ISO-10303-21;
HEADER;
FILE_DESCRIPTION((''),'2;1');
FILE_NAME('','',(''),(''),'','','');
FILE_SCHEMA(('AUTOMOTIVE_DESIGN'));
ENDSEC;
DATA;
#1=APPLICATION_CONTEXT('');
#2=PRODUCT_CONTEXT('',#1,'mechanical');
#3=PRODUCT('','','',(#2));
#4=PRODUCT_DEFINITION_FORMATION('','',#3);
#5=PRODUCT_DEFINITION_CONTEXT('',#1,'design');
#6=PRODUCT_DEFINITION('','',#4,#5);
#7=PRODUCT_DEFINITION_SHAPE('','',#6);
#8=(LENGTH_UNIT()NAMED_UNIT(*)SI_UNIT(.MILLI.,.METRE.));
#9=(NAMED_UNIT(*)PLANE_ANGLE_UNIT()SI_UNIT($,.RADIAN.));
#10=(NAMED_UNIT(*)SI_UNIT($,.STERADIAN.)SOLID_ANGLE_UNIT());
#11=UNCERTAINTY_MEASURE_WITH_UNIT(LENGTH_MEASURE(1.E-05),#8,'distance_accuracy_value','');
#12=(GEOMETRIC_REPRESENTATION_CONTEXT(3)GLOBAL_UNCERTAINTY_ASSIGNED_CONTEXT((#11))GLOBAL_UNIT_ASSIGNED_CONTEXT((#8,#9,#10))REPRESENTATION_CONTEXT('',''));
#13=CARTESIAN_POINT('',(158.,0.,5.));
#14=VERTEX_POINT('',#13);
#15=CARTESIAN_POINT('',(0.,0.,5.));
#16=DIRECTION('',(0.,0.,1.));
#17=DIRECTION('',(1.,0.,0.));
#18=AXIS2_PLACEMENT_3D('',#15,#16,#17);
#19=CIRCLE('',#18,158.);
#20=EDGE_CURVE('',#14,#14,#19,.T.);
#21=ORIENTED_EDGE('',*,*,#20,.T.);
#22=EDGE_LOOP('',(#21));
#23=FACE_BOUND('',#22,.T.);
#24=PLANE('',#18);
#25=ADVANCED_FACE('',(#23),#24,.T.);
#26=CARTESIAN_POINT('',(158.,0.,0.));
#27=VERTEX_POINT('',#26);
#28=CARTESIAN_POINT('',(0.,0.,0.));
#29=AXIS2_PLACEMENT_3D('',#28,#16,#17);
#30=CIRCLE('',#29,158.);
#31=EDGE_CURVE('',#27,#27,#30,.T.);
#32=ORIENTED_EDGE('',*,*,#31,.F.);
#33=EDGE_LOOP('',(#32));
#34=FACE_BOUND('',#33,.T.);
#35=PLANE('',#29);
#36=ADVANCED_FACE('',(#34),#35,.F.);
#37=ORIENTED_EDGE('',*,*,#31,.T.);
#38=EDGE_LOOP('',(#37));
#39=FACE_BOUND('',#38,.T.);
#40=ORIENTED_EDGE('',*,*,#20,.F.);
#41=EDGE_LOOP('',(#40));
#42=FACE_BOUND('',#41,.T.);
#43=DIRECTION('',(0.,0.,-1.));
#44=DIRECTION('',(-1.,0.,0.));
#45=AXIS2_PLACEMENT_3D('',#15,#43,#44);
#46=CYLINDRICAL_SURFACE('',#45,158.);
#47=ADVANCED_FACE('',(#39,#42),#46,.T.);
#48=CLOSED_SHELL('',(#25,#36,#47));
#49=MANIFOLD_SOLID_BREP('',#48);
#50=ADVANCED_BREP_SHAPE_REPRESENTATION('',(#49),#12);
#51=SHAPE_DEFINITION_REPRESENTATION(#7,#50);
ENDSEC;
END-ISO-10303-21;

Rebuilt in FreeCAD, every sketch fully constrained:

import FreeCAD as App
import Part
import Sketcher

doc = App.newDocument("Part")
body = doc.addObject("PartDesign::Body", "Body")

sketch1 = body.newObject("Sketcher::SketchObject", "Sketch")
sketch1.AttachmentSupport = (doc.getObject("XY_Plane"), [""])
sketch1.MapMode = "FlatFace"
sketch1.addGeometry(Part.Circle(App.Vector(0, 0, 0), App.Vector(0, 0, 1), 158), False)
sketch1.addConstraint(Sketcher.Constraint("Coincident", 0, 3, -1, 1))
sketch1.addConstraint(Sketcher.Constraint("Diameter", 0, 316.0))
pad1 = body.newObject("PartDesign::Pad", "Pad")
pad1.Profile = sketch1
pad1.Length = 5

doc.recompute()
